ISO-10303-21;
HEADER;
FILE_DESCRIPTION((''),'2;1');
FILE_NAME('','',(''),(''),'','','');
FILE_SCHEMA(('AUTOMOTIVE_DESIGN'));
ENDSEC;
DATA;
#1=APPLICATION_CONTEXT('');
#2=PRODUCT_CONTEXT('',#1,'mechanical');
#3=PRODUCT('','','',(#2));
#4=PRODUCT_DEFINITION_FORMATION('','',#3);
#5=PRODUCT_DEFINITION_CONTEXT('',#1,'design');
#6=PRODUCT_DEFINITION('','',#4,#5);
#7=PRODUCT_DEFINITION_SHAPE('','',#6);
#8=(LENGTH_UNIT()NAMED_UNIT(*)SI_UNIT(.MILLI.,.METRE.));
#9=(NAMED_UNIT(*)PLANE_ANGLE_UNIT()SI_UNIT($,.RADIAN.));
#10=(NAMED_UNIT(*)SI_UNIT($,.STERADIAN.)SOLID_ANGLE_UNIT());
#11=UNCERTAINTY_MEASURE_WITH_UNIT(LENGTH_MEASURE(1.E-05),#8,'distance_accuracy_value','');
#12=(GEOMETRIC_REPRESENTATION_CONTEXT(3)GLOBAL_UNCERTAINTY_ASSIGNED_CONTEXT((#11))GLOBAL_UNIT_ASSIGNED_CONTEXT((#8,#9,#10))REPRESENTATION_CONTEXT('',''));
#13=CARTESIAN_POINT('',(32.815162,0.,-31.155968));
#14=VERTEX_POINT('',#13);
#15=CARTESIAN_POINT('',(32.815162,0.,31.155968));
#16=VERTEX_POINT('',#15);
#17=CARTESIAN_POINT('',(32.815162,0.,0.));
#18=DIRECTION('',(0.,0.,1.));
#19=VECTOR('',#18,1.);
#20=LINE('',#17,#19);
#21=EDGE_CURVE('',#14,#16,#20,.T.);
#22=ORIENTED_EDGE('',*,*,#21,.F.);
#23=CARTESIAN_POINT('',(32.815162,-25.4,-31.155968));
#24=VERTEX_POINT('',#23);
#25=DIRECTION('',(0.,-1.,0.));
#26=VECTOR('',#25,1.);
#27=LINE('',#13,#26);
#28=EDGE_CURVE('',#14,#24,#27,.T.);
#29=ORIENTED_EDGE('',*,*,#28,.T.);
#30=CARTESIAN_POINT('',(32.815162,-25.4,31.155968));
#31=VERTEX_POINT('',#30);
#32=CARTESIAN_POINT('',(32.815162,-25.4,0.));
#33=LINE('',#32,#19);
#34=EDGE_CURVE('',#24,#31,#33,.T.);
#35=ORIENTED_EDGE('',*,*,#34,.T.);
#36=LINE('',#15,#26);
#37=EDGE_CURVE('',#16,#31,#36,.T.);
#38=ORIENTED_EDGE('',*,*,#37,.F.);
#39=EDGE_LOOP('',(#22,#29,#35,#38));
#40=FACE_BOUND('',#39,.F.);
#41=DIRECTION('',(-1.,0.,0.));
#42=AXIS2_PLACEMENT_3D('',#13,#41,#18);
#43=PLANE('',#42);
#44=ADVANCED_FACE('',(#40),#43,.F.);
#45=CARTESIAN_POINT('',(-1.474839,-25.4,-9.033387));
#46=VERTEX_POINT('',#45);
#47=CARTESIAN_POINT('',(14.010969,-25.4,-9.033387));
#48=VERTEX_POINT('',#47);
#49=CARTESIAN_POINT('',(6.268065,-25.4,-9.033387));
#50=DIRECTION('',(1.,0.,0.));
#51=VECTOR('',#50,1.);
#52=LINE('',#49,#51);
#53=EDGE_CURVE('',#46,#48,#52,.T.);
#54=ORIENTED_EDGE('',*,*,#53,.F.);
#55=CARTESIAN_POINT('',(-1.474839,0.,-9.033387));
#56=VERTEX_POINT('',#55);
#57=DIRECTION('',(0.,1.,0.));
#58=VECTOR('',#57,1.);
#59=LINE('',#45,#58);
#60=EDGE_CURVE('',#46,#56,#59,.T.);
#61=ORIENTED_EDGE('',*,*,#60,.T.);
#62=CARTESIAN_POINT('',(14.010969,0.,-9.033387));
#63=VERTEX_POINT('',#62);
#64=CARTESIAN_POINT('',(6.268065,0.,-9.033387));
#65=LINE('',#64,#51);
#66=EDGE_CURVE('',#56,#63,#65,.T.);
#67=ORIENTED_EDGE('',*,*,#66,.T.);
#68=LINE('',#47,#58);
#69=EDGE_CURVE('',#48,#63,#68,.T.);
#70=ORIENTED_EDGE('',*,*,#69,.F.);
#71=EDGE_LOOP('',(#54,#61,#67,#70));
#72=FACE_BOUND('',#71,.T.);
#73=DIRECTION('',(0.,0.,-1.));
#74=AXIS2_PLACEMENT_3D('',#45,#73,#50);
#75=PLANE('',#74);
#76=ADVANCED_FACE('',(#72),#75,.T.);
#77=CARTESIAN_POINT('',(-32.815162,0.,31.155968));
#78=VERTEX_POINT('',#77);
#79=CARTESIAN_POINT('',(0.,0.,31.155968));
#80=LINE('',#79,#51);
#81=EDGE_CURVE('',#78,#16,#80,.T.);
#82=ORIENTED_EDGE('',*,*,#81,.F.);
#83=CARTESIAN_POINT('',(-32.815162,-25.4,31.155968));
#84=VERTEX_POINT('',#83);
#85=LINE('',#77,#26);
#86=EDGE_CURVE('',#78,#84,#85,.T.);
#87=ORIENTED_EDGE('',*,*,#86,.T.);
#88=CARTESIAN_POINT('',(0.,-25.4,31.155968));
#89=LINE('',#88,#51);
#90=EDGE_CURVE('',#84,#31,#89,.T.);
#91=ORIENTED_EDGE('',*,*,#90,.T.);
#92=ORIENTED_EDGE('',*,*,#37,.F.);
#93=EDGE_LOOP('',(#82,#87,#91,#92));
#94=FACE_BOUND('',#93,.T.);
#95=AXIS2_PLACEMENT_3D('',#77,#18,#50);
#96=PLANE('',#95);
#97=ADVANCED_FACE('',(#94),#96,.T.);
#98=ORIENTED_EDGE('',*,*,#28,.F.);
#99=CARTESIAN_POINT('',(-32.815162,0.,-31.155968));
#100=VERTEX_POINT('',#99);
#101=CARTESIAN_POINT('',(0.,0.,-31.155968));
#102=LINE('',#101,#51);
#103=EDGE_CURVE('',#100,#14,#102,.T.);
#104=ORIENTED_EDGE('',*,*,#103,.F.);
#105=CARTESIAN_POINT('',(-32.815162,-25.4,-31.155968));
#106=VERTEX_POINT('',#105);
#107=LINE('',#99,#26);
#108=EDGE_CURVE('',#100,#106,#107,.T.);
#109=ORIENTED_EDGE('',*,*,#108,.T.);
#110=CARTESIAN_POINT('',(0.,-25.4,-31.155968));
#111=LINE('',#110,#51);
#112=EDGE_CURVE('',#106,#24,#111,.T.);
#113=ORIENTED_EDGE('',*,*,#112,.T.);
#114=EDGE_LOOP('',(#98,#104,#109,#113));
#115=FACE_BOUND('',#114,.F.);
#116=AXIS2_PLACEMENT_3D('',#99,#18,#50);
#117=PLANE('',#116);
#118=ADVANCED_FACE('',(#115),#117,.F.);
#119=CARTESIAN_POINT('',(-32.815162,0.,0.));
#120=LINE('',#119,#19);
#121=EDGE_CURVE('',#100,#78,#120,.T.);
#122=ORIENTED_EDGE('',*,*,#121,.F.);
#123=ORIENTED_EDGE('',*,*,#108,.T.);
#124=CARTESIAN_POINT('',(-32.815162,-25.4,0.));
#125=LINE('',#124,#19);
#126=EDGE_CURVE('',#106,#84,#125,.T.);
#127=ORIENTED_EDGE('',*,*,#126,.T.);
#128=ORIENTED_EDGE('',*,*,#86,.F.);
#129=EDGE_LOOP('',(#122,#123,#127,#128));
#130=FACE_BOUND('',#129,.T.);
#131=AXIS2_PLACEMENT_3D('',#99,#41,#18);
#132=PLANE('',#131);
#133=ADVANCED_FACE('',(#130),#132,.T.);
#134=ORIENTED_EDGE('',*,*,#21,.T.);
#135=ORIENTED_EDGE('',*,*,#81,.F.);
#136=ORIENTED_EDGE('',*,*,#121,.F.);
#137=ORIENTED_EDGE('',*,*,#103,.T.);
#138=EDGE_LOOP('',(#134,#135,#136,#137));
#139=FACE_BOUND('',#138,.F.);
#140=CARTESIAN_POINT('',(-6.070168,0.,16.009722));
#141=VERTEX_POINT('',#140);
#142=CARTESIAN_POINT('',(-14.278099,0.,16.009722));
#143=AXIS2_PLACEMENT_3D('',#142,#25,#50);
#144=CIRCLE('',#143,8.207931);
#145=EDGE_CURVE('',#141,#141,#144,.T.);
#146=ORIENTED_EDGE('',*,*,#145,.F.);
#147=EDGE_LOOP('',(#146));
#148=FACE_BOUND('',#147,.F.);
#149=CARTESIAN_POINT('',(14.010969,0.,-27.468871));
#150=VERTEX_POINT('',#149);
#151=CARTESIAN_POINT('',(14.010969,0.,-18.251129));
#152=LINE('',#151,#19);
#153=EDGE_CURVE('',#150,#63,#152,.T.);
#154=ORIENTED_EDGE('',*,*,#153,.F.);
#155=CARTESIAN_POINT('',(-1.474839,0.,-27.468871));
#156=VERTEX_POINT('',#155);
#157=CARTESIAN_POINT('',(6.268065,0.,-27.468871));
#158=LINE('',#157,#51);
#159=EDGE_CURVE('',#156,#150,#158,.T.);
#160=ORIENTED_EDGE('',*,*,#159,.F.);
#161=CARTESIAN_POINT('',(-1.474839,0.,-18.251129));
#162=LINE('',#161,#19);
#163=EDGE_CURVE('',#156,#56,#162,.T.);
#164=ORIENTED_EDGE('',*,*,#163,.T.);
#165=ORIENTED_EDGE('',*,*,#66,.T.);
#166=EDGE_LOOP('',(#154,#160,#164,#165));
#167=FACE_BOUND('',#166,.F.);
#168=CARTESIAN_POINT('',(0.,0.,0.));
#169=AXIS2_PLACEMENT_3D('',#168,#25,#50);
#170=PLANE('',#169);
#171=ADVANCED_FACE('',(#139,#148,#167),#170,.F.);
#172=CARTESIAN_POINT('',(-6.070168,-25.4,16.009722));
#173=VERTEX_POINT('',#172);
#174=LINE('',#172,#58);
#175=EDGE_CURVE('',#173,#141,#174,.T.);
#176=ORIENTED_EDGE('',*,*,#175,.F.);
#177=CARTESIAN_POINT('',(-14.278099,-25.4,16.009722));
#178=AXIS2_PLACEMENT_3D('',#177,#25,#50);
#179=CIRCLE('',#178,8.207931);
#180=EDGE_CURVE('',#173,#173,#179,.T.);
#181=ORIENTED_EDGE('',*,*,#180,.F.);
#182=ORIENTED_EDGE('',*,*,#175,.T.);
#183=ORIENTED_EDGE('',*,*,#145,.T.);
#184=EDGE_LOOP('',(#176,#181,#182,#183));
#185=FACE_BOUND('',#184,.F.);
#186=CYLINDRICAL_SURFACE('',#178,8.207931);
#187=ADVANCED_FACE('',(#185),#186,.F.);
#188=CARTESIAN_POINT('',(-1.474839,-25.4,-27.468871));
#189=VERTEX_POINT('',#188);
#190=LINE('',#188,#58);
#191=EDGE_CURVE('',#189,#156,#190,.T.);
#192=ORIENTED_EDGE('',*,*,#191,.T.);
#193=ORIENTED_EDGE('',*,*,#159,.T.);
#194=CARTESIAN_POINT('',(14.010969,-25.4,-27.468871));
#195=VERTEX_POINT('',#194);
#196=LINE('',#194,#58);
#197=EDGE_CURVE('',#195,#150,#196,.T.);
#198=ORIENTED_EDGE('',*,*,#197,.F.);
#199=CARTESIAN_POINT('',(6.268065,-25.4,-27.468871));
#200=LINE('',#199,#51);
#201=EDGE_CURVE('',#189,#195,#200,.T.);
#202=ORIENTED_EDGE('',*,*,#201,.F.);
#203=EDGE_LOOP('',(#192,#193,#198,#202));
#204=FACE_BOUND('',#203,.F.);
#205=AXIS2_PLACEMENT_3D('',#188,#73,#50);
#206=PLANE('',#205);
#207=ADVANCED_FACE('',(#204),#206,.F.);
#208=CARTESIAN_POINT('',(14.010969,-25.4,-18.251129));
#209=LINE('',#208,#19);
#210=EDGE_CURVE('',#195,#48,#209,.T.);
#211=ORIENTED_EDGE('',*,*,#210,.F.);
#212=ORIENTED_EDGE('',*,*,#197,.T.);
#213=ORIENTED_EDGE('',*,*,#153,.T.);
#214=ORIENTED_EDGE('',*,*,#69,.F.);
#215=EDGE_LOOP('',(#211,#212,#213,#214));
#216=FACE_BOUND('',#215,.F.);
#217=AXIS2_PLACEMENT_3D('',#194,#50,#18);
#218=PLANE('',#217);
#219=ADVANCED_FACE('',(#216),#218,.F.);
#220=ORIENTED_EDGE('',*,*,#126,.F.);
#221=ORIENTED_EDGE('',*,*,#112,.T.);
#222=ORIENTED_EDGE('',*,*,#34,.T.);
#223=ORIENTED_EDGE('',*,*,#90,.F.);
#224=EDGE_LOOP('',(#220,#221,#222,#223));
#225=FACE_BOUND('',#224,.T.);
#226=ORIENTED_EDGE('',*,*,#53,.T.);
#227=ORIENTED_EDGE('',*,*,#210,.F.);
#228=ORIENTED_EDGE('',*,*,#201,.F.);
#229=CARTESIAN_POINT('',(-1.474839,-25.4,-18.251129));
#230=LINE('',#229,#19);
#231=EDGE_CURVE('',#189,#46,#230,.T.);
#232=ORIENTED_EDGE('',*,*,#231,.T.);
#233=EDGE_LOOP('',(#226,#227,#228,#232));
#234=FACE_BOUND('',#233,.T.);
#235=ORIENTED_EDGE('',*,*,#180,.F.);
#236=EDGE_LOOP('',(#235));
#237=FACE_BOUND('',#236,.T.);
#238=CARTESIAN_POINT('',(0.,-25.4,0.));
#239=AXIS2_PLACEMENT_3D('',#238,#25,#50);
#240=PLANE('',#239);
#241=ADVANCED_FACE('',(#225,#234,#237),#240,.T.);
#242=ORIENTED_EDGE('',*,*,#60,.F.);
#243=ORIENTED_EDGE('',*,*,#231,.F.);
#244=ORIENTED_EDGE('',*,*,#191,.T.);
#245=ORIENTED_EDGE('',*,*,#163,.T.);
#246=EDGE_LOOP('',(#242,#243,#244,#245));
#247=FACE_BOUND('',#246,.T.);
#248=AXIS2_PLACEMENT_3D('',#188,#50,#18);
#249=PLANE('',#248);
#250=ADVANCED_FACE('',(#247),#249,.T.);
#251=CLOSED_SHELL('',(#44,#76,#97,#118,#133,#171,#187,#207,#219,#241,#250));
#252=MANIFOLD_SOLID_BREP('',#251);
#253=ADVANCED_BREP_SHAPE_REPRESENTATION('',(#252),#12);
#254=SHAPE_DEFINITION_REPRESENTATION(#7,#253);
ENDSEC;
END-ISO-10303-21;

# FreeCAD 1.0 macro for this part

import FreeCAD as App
import Part
import Sketcher
Q = App.Units.Quantity


def add_polygon(sketch, points):
    """Adds a closed chain of lines whose ends are joined by coincident constraints."""
    first, n = sketch.GeometryCount, len(points)
    for a, b in zip(points, points[1:] + points[:1]):
        sketch.addGeometry(Part.LineSegment(App.Vector(*a, 0), App.Vector(*b, 0)), False)
    for i in range(n):
        sketch.addConstraint(Sketcher.Constraint("Coincident", first + i, 2, first + (i + 1) % n, 1))

doc = App.newDocument("Part")
body = doc.addObject("PartDesign::Body", "Body")

# Sketch on XZ plane
sketch1 = body.newObject("Sketcher::SketchObject", "Sketch")
sketch1.AttachmentSupport = (doc.getObject("XZ_Plane"), [""])
sketch1.MapMode = "FlatFace"
add_polygon(sketch1, [(-32.815162, 31.155968), (-32.815162, -31.155968), (32.815162, -31.155968), (32.815162, 31.155968)])  # lines 0-3
sketch1.addConstraint([
    Sketcher.Constraint("Vertical", 0),
    Sketcher.Constraint("Horizontal", 1),
    Sketcher.Constraint("Vertical", 2),
    Sketcher.Constraint("Horizontal", 3),
    Sketcher.Constraint("Symmetric", 0, 2, 2, 2, -1, 1),
    Sketcher.Constraint("DistanceX", 1, 1, 1, 2, 65.630324),
    Sketcher.Constraint("DistanceY", 0, 2, 0, 1, 62.311936),
])
pad1 = body.newObject("PartDesign::Pad", "Pad")
pad1.Profile = sketch1
pad1.Length = Q("1 in")

# Sketch on XZ plane
sketch2 = body.newObject("Sketcher::SketchObject", "Sketch001")
sketch2.AttachmentSupport = (doc.getObject("XZ_Plane"), [""])
sketch2.MapMode = "FlatFace"
sketch2.AttachmentOffset = App.Placement(App.Vector(0, 0, 1 * 25.4), App.Rotation())
sketch2.addGeometry(Part.Circle(App.Vector(-14.278099, 16.009722, 0), App.Vector(0, 0, 1), 8.207931), False)
sketch2.addConstraint([
    Sketcher.Constraint("Diameter", 0, 16.415862),
    Sketcher.Constraint("DistanceX", 0, 3, -1, 1, 14.278099),
    Sketcher.Constraint("DistanceY", -1, 1, 0, 3, 16.009722),
])
pocket1 = body.newObject("PartDesign::Pocket", "Pocket")
pocket1.Profile = sketch2
pocket1.Type = "ThroughAll"

# Sketch on XZ plane
sketch3 = body.newObject("Sketcher::SketchObject", "Sketch002")
sketch3.AttachmentSupport = (doc.getObject("XZ_Plane"), [""])
sketch3.MapMode = "FlatFace"
sketch3.AttachmentOffset = App.Placement(App.Vector(0, 0, 1 * 25.4), App.Rotation())
add_polygon(sketch3, [(-1.474839, -9.033387), (-1.474839, -27.468871), (14.010969, -27.468871), (14.010969, -9.033387)])  # lines 0-3
sketch3.addConstraint([
    Sketcher.Constraint("Vertical", 0),
    Sketcher.Constraint("Horizontal", 1),
    Sketcher.Constraint("Vertical", 2),
    Sketcher.Constraint("Horizontal", 3),
    Sketcher.Constraint("DistanceX", 1, 1, 1, 2, 15.485808),
    Sketcher.Constraint("DistanceY", 0, 2, 0, 1, 18.435483),
    Sketcher.Constraint("DistanceX", 0, 2, -1, 1, 1.474839),
    Sketcher.Constraint("DistanceY", 0, 2, -1, 1, 27.468871),
])
pocket2 = body.newObject("PartDesign::Pocket", "Pocket001")
pocket2.Profile = sketch3
pocket2.Length = Q("1 in")

doc.recompute()
